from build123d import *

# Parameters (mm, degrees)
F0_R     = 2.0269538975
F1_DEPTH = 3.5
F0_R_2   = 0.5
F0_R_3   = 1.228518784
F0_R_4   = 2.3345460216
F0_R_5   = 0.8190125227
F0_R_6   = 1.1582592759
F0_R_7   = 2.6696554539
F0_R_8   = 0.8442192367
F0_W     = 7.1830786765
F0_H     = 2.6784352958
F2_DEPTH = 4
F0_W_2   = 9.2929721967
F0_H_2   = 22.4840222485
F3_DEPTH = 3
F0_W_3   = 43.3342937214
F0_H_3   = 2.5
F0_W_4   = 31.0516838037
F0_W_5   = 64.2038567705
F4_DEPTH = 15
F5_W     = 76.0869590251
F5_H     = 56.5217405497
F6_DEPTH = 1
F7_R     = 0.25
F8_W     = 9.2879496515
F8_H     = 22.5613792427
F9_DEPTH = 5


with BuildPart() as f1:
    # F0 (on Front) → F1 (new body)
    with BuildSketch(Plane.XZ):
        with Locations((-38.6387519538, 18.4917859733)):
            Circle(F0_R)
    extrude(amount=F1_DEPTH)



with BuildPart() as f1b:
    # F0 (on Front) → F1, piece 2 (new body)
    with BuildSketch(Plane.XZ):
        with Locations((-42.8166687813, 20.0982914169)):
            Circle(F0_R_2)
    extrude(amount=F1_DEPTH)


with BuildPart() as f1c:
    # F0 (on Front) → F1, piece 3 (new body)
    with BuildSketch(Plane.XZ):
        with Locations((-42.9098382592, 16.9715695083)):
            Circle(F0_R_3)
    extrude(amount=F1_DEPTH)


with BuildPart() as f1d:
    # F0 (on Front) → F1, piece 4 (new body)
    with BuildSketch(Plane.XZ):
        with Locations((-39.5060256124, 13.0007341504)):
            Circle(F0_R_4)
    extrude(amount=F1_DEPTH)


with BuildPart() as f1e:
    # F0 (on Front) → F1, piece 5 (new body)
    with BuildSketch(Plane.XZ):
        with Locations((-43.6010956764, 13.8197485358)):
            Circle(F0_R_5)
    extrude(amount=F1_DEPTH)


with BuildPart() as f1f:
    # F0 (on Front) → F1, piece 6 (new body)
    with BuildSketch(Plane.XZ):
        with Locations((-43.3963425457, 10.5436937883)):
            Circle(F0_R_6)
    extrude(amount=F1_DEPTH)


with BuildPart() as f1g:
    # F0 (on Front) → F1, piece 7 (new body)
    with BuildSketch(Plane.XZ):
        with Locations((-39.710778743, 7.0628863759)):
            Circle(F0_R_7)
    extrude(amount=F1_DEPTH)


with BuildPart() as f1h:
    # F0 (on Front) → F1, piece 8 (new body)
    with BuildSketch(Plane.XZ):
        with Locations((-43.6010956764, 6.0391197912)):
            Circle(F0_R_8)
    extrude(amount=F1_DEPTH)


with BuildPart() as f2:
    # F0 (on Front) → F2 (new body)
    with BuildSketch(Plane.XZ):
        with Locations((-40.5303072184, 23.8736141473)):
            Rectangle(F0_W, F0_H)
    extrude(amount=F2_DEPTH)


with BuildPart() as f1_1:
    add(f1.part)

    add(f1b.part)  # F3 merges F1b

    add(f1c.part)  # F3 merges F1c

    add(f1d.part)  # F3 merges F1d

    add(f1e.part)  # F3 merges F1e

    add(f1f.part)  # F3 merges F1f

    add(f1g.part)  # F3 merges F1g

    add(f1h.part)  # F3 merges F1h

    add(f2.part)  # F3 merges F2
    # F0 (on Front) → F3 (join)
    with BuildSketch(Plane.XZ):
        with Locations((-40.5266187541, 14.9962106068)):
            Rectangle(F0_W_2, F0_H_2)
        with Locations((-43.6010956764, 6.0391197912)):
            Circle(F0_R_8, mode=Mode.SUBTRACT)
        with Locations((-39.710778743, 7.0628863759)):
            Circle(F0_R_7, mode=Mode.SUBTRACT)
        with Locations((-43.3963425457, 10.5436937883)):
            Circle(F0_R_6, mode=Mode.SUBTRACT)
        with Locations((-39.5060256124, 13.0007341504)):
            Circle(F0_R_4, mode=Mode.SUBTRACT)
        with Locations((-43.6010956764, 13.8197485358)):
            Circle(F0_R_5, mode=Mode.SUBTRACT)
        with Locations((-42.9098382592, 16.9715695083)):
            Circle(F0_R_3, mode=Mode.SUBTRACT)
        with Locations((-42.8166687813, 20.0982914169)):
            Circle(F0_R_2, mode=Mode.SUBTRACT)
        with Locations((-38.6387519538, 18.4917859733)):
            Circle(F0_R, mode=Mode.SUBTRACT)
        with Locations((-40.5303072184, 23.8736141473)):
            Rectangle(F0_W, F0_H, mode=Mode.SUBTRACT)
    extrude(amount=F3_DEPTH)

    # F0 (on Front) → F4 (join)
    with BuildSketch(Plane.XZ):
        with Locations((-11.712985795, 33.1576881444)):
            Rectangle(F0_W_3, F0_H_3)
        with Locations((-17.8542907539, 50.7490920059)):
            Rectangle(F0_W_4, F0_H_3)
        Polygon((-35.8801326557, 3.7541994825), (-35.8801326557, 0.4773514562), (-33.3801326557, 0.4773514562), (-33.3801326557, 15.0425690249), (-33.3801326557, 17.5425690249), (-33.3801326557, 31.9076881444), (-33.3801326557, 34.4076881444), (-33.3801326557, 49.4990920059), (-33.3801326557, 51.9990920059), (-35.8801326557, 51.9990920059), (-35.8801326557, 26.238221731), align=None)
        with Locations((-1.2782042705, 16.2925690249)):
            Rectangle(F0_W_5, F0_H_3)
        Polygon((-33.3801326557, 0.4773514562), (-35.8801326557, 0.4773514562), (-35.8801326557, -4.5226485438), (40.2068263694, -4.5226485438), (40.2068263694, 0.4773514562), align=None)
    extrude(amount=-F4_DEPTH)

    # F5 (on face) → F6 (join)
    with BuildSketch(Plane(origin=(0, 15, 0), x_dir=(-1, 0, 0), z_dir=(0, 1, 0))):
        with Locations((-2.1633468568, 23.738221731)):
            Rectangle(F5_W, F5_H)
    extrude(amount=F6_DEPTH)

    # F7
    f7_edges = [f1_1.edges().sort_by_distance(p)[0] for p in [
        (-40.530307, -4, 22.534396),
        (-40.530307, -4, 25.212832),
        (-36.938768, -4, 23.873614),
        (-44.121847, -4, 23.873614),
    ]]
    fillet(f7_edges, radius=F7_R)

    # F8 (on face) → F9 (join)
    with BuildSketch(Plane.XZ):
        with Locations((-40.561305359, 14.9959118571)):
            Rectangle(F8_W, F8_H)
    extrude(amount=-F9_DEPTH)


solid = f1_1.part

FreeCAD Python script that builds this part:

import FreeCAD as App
import Part
import Sketcher

V = App.Vector


def edges_at(feature, points):
    """Names of the edges that pass closest to the given points."""
    edges = feature.Shape.Edges
    near = lambda p: min(range(len(edges)), key=lambda i: edges[i].distToShape(Part.Vertex(*p))[0])
    return sorted({f"Edge{near(p) + 1}" for p in points})

doc = App.newDocument("Part")
body = doc.addObject("PartDesign::Body", "Body")

# Sketch on XZ plane
sketch1 = body.newObject("Sketcher::SketchObject", "Sketch")
sketch1.AttachmentSupport = (doc.getObject("XZ_Plane"), [""])
sketch1.MapMode = "FlatFace"
sketch1.addGeometry(Part.Circle(V(-38.6, 18.5, 0), V(0, 0, 1), 2), False)
sketch1.addConstraint(Sketcher.Constraint("Diameter", 0, 4.053908))
sketch1.addConstraint(Sketcher.Constraint("DistanceX", 0, 3, -1, 1, 38.638752))
sketch1.addConstraint(Sketcher.Constraint("DistanceY", -1, 1, 0, 3, 18.491786))
pad1 = body.newObject("PartDesign::Pad", "Pad")
pad1.Profile = sketch1
pad1.Length = 3.5
body2 = doc.addObject("PartDesign::Body", "Body001")

# Sketch on XZ plane
sketch2 = body2.newObject("Sketcher::SketchObject", "Sketch001")
sketch2.AttachmentSupport = (doc.getObject("XZ_Plane001"), [""])
sketch2.MapMode = "FlatFace"
sketch2.addGeometry(Part.Circle(V(-42.8, 20.1, 0), V(0, 0, 1), 0.5), False)
sketch2.addConstraint(Sketcher.Constraint("Diameter", 0, 1.0))
sketch2.addConstraint(Sketcher.Constraint("DistanceX", 0, 3, -1, 1, 42.816669))
sketch2.addConstraint(Sketcher.Constraint("DistanceY", -1, 1, 0, 3, 20.098291))
pad2 = body2.newObject("PartDesign::Pad", "Pad001")
pad2.Profile = sketch2
pad2.Length = 3.5
body3 = doc.addObject("PartDesign::Body", "Body002")

# Sketch on XZ plane
sketch3 = body3.newObject("Sketcher::SketchObject", "Sketch002")
sketch3.AttachmentSupport = (doc.getObject("XZ_Plane002"), [""])
sketch3.MapMode = "FlatFace"
sketch3.addGeometry(Part.Circle(V(-42.9, 17, 0), V(0, 0, 1), 1.2), False)
sketch3.addConstraint(Sketcher.Constraint("Diameter", 0, 2.457038))
sketch3.addConstraint(Sketcher.Constraint("DistanceX", 0, 3, -1, 1, 42.909838))
sketch3.addConstraint(Sketcher.Constraint("DistanceY", -1, 1, 0, 3, 16.97157))
pad3 = body3.newObject("PartDesign::Pad", "Pad002")
pad3.Profile = sketch3
pad3.Length = 3.5
body4 = doc.addObject("PartDesign::Body", "Body003")

# Sketch on XZ plane
sketch4 = body4.newObject("Sketcher::SketchObject", "Sketch003")
sketch4.AttachmentSupport = (doc.getObject("XZ_Plane003"), [""])
sketch4.MapMode = "FlatFace"
sketch4.addGeometry(Part.Circle(V(-39.5, 13, 0), V(0, 0, 1), 2.3), False)
sketch4.addConstraint(Sketcher.Constraint("Diameter", 0, 4.669092))
sketch4.addConstraint(Sketcher.Constraint("DistanceX", 0, 3, -1, 1, 39.506026))
sketch4.addConstraint(Sketcher.Constraint("DistanceY", -1, 1, 0, 3, 13.000734))
pad4 = body4.newObject("PartDesign::Pad", "Pad003")
pad4.Profile = sketch4
pad4.Length = 3.5
body5 = doc.addObject("PartDesign::Body", "Body004")

# Sketch on XZ plane
sketch5 = body5.newObject("Sketcher::SketchObject", "Sketch004")
sketch5.AttachmentSupport = (doc.getObject("XZ_Plane004"), [""])
sketch5.MapMode = "FlatFace"
sketch5.addGeometry(Part.Circle(V(-43.6, 13.8, 0), V(0, 0, 1), 0.8), False)
sketch5.addConstraint(Sketcher.Constraint("Diameter", 0, 1.638025))
sketch5.addConstraint(Sketcher.Constraint("DistanceY", -1, 1, 0, 3, 13.819749))
sketch5.addConstraint(Sketcher.Constraint("DistanceX", 0, 3, -1, 1, 43.601096))
pad5 = body5.newObject("PartDesign::Pad", "Pad004")
pad5.Profile = sketch5
pad5.Length = 3.5
body6 = doc.addObject("PartDesign::Body", "Body005")

# Sketch on XZ plane
sketch6 = body6.newObject("Sketcher::SketchObject", "Sketch005")
sketch6.AttachmentSupport = (doc.getObject("XZ_Plane005"), [""])
sketch6.MapMode = "FlatFace"
sketch6.addGeometry(Part.Circle(V(-43.4, 10.5, 0), V(0, 0, 1), 1.2), False)
sketch6.addConstraint(Sketcher.Constraint("Diameter", 0, 2.316519))
sketch6.addConstraint(Sketcher.Constraint("DistanceX", 0, 3, -1, 1, 43.396343))
sketch6.addConstraint(Sketcher.Constraint("DistanceY", -1, 1, 0, 3, 10.543694))
pad6 = body6.newObject("PartDesign::Pad", "Pad005")
pad6.Profile = sketch6
pad6.Length = 3.5
body7 = doc.addObject("PartDesign::Body", "Body006")

# Sketch on XZ plane
sketch7 = body7.newObject("Sketcher::SketchObject", "Sketch006")
sketch7.AttachmentSupport = (doc.getObject("XZ_Plane006"), [""])
sketch7.MapMode = "FlatFace"
sketch7.addGeometry(Part.Circle(V(-39.7, 7.1, 0), V(0, 0, 1), 2.7), False)
sketch7.addConstraint(Sketcher.Constraint("Diameter", 0, 5.339311))
sketch7.addConstraint(Sketcher.Constraint("DistanceX", 0, 3, -1, 1, 39.710779))
sketch7.addConstraint(Sketcher.Constraint("DistanceY", -1, 1, 0, 3, 7.062886))
pad7 = body7.newObject("PartDesign::Pad", "Pad006")
pad7.Profile = sketch7
pad7.Length = 3.5
body8 = doc.addObject("PartDesign::Body", "Body007")

# Sketch on XZ plane
sketch8 = body8.newObject("Sketcher::SketchObject", "Sketch007")
sketch8.AttachmentSupport = (doc.getObject("XZ_Plane007"), [""])
sketch8.MapMode = "FlatFace"
sketch8.addGeometry(Part.Circle(V(-43.6, 6, 0), V(0, 0, 1), 0.8), False)
sketch8.addConstraint(Sketcher.Constraint("Diameter", 0, 1.688438))
sketch8.addConstraint(Sketcher.Constraint("DistanceY", -1, 1, 0, 3, 6.03912))
sketch8.addConstraint(Sketcher.Constraint("DistanceX", 0, 3, -1, 1, 43.601096))
pad8 = body8.newObject("PartDesign::Pad", "Pad007")
pad8.Profile = sketch8
pad8.Length = 3.5
body9 = doc.addObject("PartDesign::Body", "Body008")

# Sketch on XZ plane
sketch9 = body9.newObject("Sketcher::SketchObject", "Sketch008")
sketch9.AttachmentSupport = (doc.getObject("XZ_Plane008"), [""])
sketch9.MapMode = "FlatFace"
sketch9.addGeometry(Part.LineSegment(V(-44.1, 25.2, 0), V(-44.1, 22.5, 0)), False)
sketch9.addGeometry(Part.LineSegment(V(-44.1, 22.5, 0), V(-36.9, 22.5, 0)), False)
sketch9.addGeometry(Part.LineSegment(V(-36.9, 22.5, 0), V(-36.9, 25.2, 0)), False)
sketch9.addGeometry(Part.LineSegment(V(-36.9, 25.2, 0), V(-44.1, 25.2, 0)), False)
sketch9.addConstraint(Sketcher.Constraint("Coincident", 0, 2, 1, 1))
sketch9.addConstraint(Sketcher.Constraint("Coincident", 1, 2, 2, 1))
sketch9.addConstraint(Sketcher.Constraint("Coincident", 2, 2, 3, 1))
sketch9.addConstraint(Sketcher.Constraint("Coincident", 3, 2, 0, 1))
sketch9.addConstraint(Sketcher.Constraint("Vertical", 0))
sketch9.addConstraint(Sketcher.Constraint("Horizontal", 1))
sketch9.addConstraint(Sketcher.Constraint("Vertical", 2))
sketch9.addConstraint(Sketcher.Constraint("Horizontal", 3))
sketch9.addConstraint(Sketcher.Constraint("DistanceX", 1, 1, 1, 2, 7.183079))
sketch9.addConstraint(Sketcher.Constraint("DistanceY", 0, 2, 0, 1, 2.678435))
sketch9.addConstraint(Sketcher.Constraint("DistanceY", -1, 1, 2, 2, 25.212832))
sketch9.addConstraint(Sketcher.Constraint("DistanceX", 0, 2, -1, 1, 44.121847))
pad9 = body9.newObject("PartDesign::Pad", "Pad008")
pad9.Profile = sketch9
pad9.Length = 4
body.AllowCompound = True
doc.recompute()

boolean = body.newObject("PartDesign::Boolean", "Boolean")
boolean.Type = "Fuse"
boolean.addObjects([body2])
doc.recompute()

boolean2 = body.newObject("PartDesign::Boolean", "Boolean001")
boolean2.Type = "Fuse"
boolean2.addObjects([body3])
doc.recompute()

boolean3 = body.newObject("PartDesign::Boolean", "Boolean002")
boolean3.Type = "Fuse"
boolean3.addObjects([body4])
doc.recompute()

boolean4 = body.newObject("PartDesign::Boolean", "Boolean003")
boolean4.Type = "Fuse"
boolean4.addObjects([body5])
doc.recompute()

boolean5 = body.newObject("PartDesign::Boolean", "Boolean004")
boolean5.Type = "Fuse"
boolean5.addObjects([body6])
doc.recompute()

boolean6 = body.newObject("PartDesign::Boolean", "Boolean005")
boolean6.Type = "Fuse"
boolean6.addObjects([body7])
doc.recompute()

boolean7 = body.newObject("PartDesign::Boolean", "Boolean006")
boolean7.Type = "Fuse"
boolean7.addObjects([body8])
doc.recompute()

boolean8 = body.newObject("PartDesign::Boolean", "Boolean007")
boolean8.Type = "Fuse"
boolean8.addObjects([body9])

# Sketch on XZ plane
sketch10 = body.newObject("Sketcher::SketchObject", "Sketch009")
sketch10.AttachmentSupport = (doc.getObject("XZ_Plane"), [""])
sketch10.MapMode = "FlatFace"
sketch10.addGeometry(Part.LineSegment(V(-45.2, 26.2, 0), V(-45.2, 3.8, 0)), False)
sketch10.addGeometry(Part.LineSegment(V(-45.2, 3.8, 0), V(-35.9, 3.8, 0)), False)
sketch10.addGeometry(Part.LineSegment(V(-35.9, 3.8, 0), V(-35.9, 26.2, 0)), False)
sketch10.addGeometry(Part.LineSegment(V(-35.9, 26.2, 0), V(-45.2, 26.2, 0)), False)
sketch10.addGeometry(Part.Circle(V(-43.6, 6, 0), V(0, 0, 1), 0.8), False)
sketch10.addGeometry(Part.Circle(V(-43.4, 10.5, 0), V(0, 0, 1), 1.2), False)
sketch10.addGeometry(Part.Circle(V(-43.6, 13.8, 0), V(0, 0, 1), 0.8), False)
sketch10.addGeometry(Part.Circle(V(-39.7, 7.1, 0), V(0, 0, 1), 2.7), False)
sketch10.addGeometry(Part.Circle(V(-39.5, 13, 0), V(0, 0, 1), 2.3), False)
sketch10.addGeometry(Part.Circle(V(-42.9, 17, 0), V(0, 0, 1), 1.2), False)
sketch10.addGeometry(Part.Circle(V(-42.8, 20.1, 0), V(0, 0, 1), 0.5), False)
sketch10.addGeometry(Part.Circle(V(-38.6, 18.5, 0), V(0, 0, 1), 2), False)
sketch10.addGeometry(Part.LineSegment(V(-36.9, 22.5, 0), V(-44.1, 22.5, 0)), False)
sketch10.addGeometry(Part.LineSegment(V(-44.1, 22.5, 0), V(-44.1, 25.2, 0)), False)
sketch10.addGeometry(Part.LineSegment(V(-44.1, 25.2, 0), V(-36.9, 25.2, 0)), False)
sketch10.addGeometry(Part.LineSegment(V(-36.9, 25.2, 0), V(-36.9, 22.5, 0)), False)
sketch10.addConstraint(Sketcher.Constraint("Coincident", 0, 2, 1, 1))
sketch10.addConstraint(Sketcher.Constraint("Coincident", 1, 2, 2, 1))
sketch10.addConstraint(Sketcher.Constraint("Coincident", 2, 2, 3, 1))
sketch10.addConstraint(Sketcher.Constraint("Coincident", 3, 2, 0, 1))
sketch10.addConstraint(Sketcher.Constraint("Coincident", 12, 2, 13, 1))
sketch10.addConstraint(Sketcher.Constraint("Coincident", 13, 2, 14, 1))
sketch10.addConstraint(Sketcher.Constraint("Coincident", 14, 2, 15, 1))
sketch10.addConstraint(Sketcher.Constraint("Coincident", 15, 2, 12, 1))
sketch10.addConstraint(Sketcher.Constraint("Vertical", 0))
sketch10.addConstraint(Sketcher.Constraint("Horizontal", 1))
sketch10.addConstraint(Sketcher.Constraint("Vertical", 2))
sketch10.addConstraint(Sketcher.Constraint("Horizontal", 3))
sketch10.addConstraint(Sketcher.Constraint("Horizontal", 12))
sketch10.addConstraint(Sketcher.Constraint("Vertical", 13))
sketch10.addConstraint(Sketcher.Constraint("Horizontal", 14))
sketch10.addConstraint(Sketcher.Constraint("Vertical", 15))
sketch10.addConstraint(Sketcher.Constraint("Vertical", 4, 3, 6, 3))
sketch10.addConstraint(Sketcher.Constraint("Diameter", 10, 1.0))
sketch10.addConstraint(Sketcher.Constraint("Diameter", 4, 1.688438))
sketch10.addConstraint(Sketcher.Constraint("Diameter", 5, 2.316519))
sketch10.addConstraint(Sketcher.Constraint("Diameter", 7, 5.339311))
sketch10.addConstraint(Sketcher.Constraint("Diameter", 6, 1.638025))
sketch10.addConstraint(Sketcher.Constraint("Diameter", 8, 4.669092))
sketch10.addConstraint(Sketcher.Constraint("Diameter", 9, 2.457038))
sketch10.addConstraint(Sketcher.Constraint("Diameter", 11, 4.053908))
sketch10.addConstraint(Sketcher.Constraint("DistanceX", 12, 2, 12, 1, 7.183079))
sketch10.addConstraint(Sketcher.Constraint("DistanceY", -1, 1, 0, 2, 3.754199))
sketch10.addConstraint(Sketcher.Constraint("DistanceX", 10, 3, 14, 2, 5.877901))
sketch10.addConstraint(Sketcher.Constraint("DistanceX", 1, 1, 1, 2, 9.292972))
sketch10.addConstraint(Sketcher.Constraint("DistanceY", 0, 2, 0, 1, 22.484022))
sketch10.addConstraint(Sketcher.Constraint("DistanceY", 13, 1, 13, 2, 2.678435))
sketch10.addConstraint(Sketcher.Constraint("DistanceY", -1, 1, 4, 3, 6.03912))
sketch10.addConstraint(Sketcher.Constraint("DistanceY", -1, 1, 6, 3, 13.819749))
sketch10.addConstraint(Sketcher.Constraint("DistanceX", 7, 3, -1, 1, 39.710779))
sketch10.addConstraint(Sketcher.Constraint("DistanceX", 9, 3, -1, 1, 42.909838))
sketch10.addConstraint(Sketcher.Constraint("DistanceY", -1, 1, 9, 3, 16.97157))
sketch10.addConstraint(Sketcher.Constraint("DistanceX", 10, 3, -1, 1, 42.816669))
sketch10.addConstraint(Sketcher.Constraint("DistanceY", -1, 1, 10, 3, 20.098291))
sketch10.addConstraint(Sketcher.Constraint("DistanceX", 11, 3, -1, 1, 38.638752))
sketch10.addConstraint(Sketcher.Constraint("DistanceY", -1, 1, 13, 2, 25.212832))
sketch10.addConstraint(Sketcher.Constraint("DistanceX", 6, 3, 8, 3, 4.09507))
sketch10.addConstraint(Sketcher.Constraint("DistanceY", 5, 3, 8, 3, 2.45704))
sketch10.addConstraint(Sketcher.Constraint("DistanceY", 8, 3, 11, 3, 5.491052))
sketch10.addConstraint(Sketcher.Constraint("DistanceX", 5, 3, 11, 3, 4.757591))
sketch10.addConstraint(Sketcher.Constraint("DistanceX", 0, 2, 4, 3, 1.572009))
sketch10.addConstraint(Sketcher.Constraint("DistanceX", 5, 3, 1, 2, 7.51621))
sketch10.addConstraint(Sketcher.Constraint("DistanceY", 11, 3, 12, 2, 4.042611))
sketch10.addConstraint(Sketcher.Constraint("DistanceY", -1, 1, 7, 3, 7.062886))
pad10 = body.newObject("PartDesign::Pad", "Pad009")
pad10.Profile = sketch10
pad10.Length = 3

# Sketch on XZ plane
sketch11 = body.newObject("Sketcher::SketchObject", "Sketch010")
sketch11.AttachmentSupport = (doc.getObject("XZ_Plane"), [""])
sketch11.MapMode = "FlatFace"
sketch11.addGeometry(Part.LineSegment(V(-33.4, 31.9, 0), V(10, 31.9, 0)), False)
sketch11.addGeometry(Part.LineSegment(V(10, 31.9, 0), V(10, 34.4, 0)), False)
sketch11.addGeometry(Part.LineSegment(V(10, 34.4, 0), V(-33.4, 34.4, 0)), False)
sketch11.addGeometry(Part.LineSegment(V(-33.4, 34.4, 0), V(-33.4, 49.5, 0)), False)
sketch11.addGeometry(Part.LineSegment(V(-33.4, 49.5, 0), V(-2.3, 49.5, 0)), False)
sketch11.addGeometry(Part.LineSegment(V(-2.3, 49.5, 0), V(-2.3, 52, 0)), False)
sketch11.addGeometry(Part.LineSegment(V(-2.3, 52, 0), V(-35.9, 52, 0)), False)
sketch11.addGeometry(Part.LineSegment(V(-35.9, 52, 0), V(-35.9, -4.5, 0)), False)
sketch11.addGeometry(Part.LineSegment(V(-35.9, -4.5, 0), V(40.2, -4.5, 0)), False)
sketch11.addGeometry(Part.LineSegment(V(40.2, -4.5, 0), V(40.2, 0.5, 0)), False)
sketch11.addGeometry(Part.LineSegment(V(40.2, 0.5, 0), V(-33.4, 0.5, 0)), False)
sketch11.addGeometry(Part.LineSegment(V(-33.4, 0.5, 0), V(-33.4, 15, 0)), False)
sketch11.addGeometry(Part.LineSegment(V(-33.4, 15, 0), V(30.8, 15, 0)), False)
sketch11.addGeometry(Part.LineSegment(V(30.8, 15, 0), V(30.8, 17.5, 0)), False)
sketch11.addGeometry(Part.LineSegment(V(30.8, 17.5, 0), V(-33.4, 17.5, 0)), False)
sketch11.addGeometry(Part.LineSegment(V(-33.4, 17.5, 0), V(-33.4, 31.9, 0)), False)
sketch11.addConstraint(Sketcher.Constraint("Coincident", 0, 2, 1, 1))
sketch11.addConstraint(Sketcher.Constraint("Coincident", 1, 2, 2, 1))
sketch11.addConstraint(Sketcher.Constraint("Coincident", 2, 2, 3, 1))
sketch11.addConstraint(Sketcher.Constraint("Coincident", 3, 2, 4, 1))
sketch11.addConstraint(Sketcher.Constraint("Coincident", 4, 2, 5, 1))
sketch11.addConstraint(Sketcher.Constraint("Coincident", 5, 2, 6, 1))
sketch11.addConstraint(Sketcher.Constraint("Coincident", 6, 2, 7, 1))
sketch11.addConstraint(Sketcher.Constraint("Coincident", 7, 2, 8, 1))
sketch11.addConstraint(Sketcher.Constraint("Coincident", 8, 2, 9, 1))
sketch11.addConstraint(Sketcher.Constraint("Coincident", 9, 2, 10, 1))
sketch11.addConstraint(Sketcher.Constraint("Coincident", 10, 2, 11, 1))
sketch11.addConstraint(Sketcher.Constraint("Coincident", 11, 2, 12, 1))
sketch11.addConstraint(Sketcher.Constraint("Coincident", 12, 2, 13, 1))
sketch11.addConstraint(Sketcher.Constraint("Coincident", 13, 2, 14, 1))
sketch11.addConstraint(Sketcher.Constraint("Coincident", 14, 2, 15, 1))
sketch11.addConstraint(Sketcher.Constraint("Coincident", 15, 2, 0, 1))
sketch11.addConstraint(Sketcher.Constraint("Horizontal", 0))
sketch11.addConstraint(Sketcher.Constraint("Vertical", 1))
sketch11.addConstraint(Sketcher.Constraint("Horizontal", 2))
sketch11.addConstraint(Sketcher.Constraint("Vertical", 3))
sketch11.addConstraint(Sketcher.Constraint("Horizontal", 4))
sketch11.addConstraint(Sketcher.Constraint("Vertical", 5))
sketch11.addConstraint(Sketcher.Constraint("Horizontal", 6))
sketch11.addConstraint(Sketcher.Constraint("Vertical", 7))
sketch11.addConstraint(Sketcher.Constraint("Horizontal", 8))
sketch11.addConstraint(Sketcher.Constraint("Vertical", 9))
sketch11.addConstraint(Sketcher.Constraint("Horizontal", 10))
sketch11.addConstraint(Sketcher.Constraint("Vertical", 11))
sketch11.addConstraint(Sketcher.Constraint("Horizontal", 12))
sketch11.addConstraint(Sketcher.Constraint("Vertical", 13))
sketch11.addConstraint(Sketcher.Constraint("Horizontal", 14))
sketch11.addConstraint(Sketcher.Constraint("Vertical", 15))
sketch11.addConstraint(Sketcher.Constraint("Vertical", 3, 2, 10, 2))
sketch11.addConstraint(Sketcher.Constraint("Vertical", 11, 2, 14, 2))
sketch11.addConstraint(Sketcher.Constraint("Equal", 1, 5))
sketch11.addConstraint(Sketcher.Constraint("Equal", 5, 13))
sketch11.addConstraint(Sketcher.Constraint("DistanceY", 9, 1, 9, 2, 5.0))
sketch11.addConstraint(Sketcher.Constraint("DistanceY", 1, 1, 1, 2, 2.5))
sketch11.addConstraint(Sketcher.Constraint("DistanceX", 6, 2, 3, 2, 2.5))
sketch11.addConstraint(Sketcher.Constraint("DistanceX", 8, 1, 8, 2, 76.086959))
sketch11.addConstraint(Sketcher.Constraint("DistanceY", 7, 2, 7, 1, 56.521741))
sketch11.addConstraint(Sketcher.Constraint("DistanceY", 15, 1, 15, 2, 14.365119))
sketch11.addConstraint(Sketcher.Constraint("DistanceX", 0, 1, 0, 2, 43.334294))
sketch11.addConstraint(Sketcher.Constraint("DistanceX", 4, 1, 4, 2, 31.051684))
sketch11.addConstraint(Sketcher.Constraint("DistanceX", 12, 1, 12, 2, 64.203857))
sketch11.addConstraint(Sketcher.Constraint("DistanceY", 3, 1, 3, 2, 15.091404))
sketch11.addConstraint(Sketcher.Constraint("DistanceX", -1, 1, 0, 2, 9.954161))
sketch11.addConstraint(Sketcher.Constraint("DistanceY", -1, 1, 0, 2, 31.907688))
pad11 = body.newObject("PartDesign::Pad", "Pad010")
pad11.Profile = sketch11
pad11.Length = 15
pad11.Reversed = True

# Sketch on XZ plane
sketch12 = body.newObject("Sketcher::SketchObject", "Sketch011")
sketch12.AttachmentSupport = (doc.getObject("XZ_Plane"), [""])
sketch12.MapMode = "FlatFace"
sketch12.AttachmentOffset = App.Placement(V(0, 0, -15), App.Rotation())
sketch12.addGeometry(Part.LineSegment(V(40, 52, 0), V(40, -5, 0)), False)
sketch12.addGeometry(Part.LineSegment(V(40, -5, 0), V(-36, -5, 0)), False)
sketch12.addGeometry(Part.LineSegment(V(-36, -5, 0), V(-36, 52, 0)), False)
sketch12.addGeometry(Part.LineSegment(V(-36, 52, 0), V(40, 52, 0)), False)
sketch12.addConstraint(Sketcher.Constraint("Coincident", 0, 2, 1, 1))
sketch12.addConstraint(Sketcher.Constraint("Coincident", 1, 2, 2, 1))
sketch12.addConstraint(Sketcher.Constraint("Coincident", 2, 2, 3, 1))
sketch12.addConstraint(Sketcher.Constraint("Coincident", 3, 2, 0, 1))
sketch12.addConstraint(Sketcher.Constraint("Vertical", 0))
sketch12.addConstraint(Sketcher.Constraint("Horizontal", 1))
sketch12.addConstraint(Sketcher.Constraint("Vertical", 2))
sketch12.addConstraint(Sketcher.Constraint("Horizontal", 3))
sketch12.addConstraint(Sketcher.Constraint("DistanceX", 1, 2, 1, 1, 76.086959))
sketch12.addConstraint(Sketcher.Constraint("DistanceY", 0, 2, 0, 1, 56.521741))
sketch12.addConstraint(Sketcher.Constraint("DistanceY", 0, 2, -1, 1, 4.522649))
sketch12.addConstraint(Sketcher.Constraint("DistanceX", -1, 1, 0, 2, 40.206826))
pad12 = body.newObject("PartDesign::Pad", "Pad011")
pad12.Profile = sketch12
pad12.Length = 1
pad12.Reversed = True
doc.recompute()

fillet = body.newObject("PartDesign::Fillet", "Fillet")
fillet.Base = (pad12, edges_at(pad12, [
    (-40.53, -4, 22.534),
    (-40.53, -4, 25.213),
    (-36.939, -4, 23.874),
    (-44.122, -4, 23.874),
]))
fillet.Radius = 0.25

# Sketch on XZ plane
sketch13 = body.newObject("Sketcher::SketchObject", "Sketch012")
sketch13.AttachmentSupport = (doc.getObject("XZ_Plane"), [""])
sketch13.MapMode = "FlatFace"
sketch13.addGeometry(Part.LineSegment(V(-45, 26, 0), V(-45, 4, 0)), False)
sketch13.addGeometry(Part.LineSegment(V(-45, 4, 0), V(-36, 4, 0)), False)
sketch13.addGeometry(Part.LineSegment(V(-36, 4, 0), V(-36, 26, 0)), False)
sketch13.addGeometry(Part.LineSegment(V(-36, 26, 0), V(-45, 26, 0)), False)
sketch13.addConstraint(Sketcher.Constraint("Coincident", 0, 2, 1, 1))
sketch13.addConstraint(Sketcher.Constraint("Coincident", 1, 2, 2, 1))
sketch13.addConstraint(Sketcher.Constraint("Coincident", 2, 2, 3, 1))
sketch13.addConstraint(Sketcher.Constraint("Coincident", 3, 2, 0, 1))
sketch13.addConstraint(Sketcher.Constraint("Vertical", 0))
sketch13.addConstraint(Sketcher.Constraint("Horizontal", 1))
sketch13.addConstraint(Sketcher.Constraint("Vertical", 2))
sketch13.addConstraint(Sketcher.Constraint("Horizontal", 3))
sketch13.addConstraint(Sketcher.Constraint("DistanceX", 1, 1, 1, 2, 9.28795))
sketch13.addConstraint(Sketcher.Constraint("DistanceY", 0, 2, 0, 1, 22.561379))
sketch13.addConstraint(Sketcher.Constraint("DistanceY", -1, 1, 2, 2, 26.276601))
sketch13.addConstraint(Sketcher.Constraint("DistanceX", 0, 2, -1, 1, 45.20528))
pad13 = body.newObject("PartDesign::Pad", "Pad012")
pad13.Profile = sketch13
pad13.Length = 5
pad13.Reversed = True

doc.recompute()
